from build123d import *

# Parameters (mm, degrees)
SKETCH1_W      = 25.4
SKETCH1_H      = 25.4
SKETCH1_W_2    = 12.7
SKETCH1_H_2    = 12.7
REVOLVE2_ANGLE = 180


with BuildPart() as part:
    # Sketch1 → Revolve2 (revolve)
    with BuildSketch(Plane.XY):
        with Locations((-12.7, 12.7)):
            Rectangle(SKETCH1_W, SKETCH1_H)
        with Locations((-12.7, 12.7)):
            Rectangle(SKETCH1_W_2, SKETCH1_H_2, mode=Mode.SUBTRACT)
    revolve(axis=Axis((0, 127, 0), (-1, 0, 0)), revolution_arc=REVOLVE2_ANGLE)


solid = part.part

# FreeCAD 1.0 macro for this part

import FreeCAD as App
import Part
import Sketcher
Q = App.Units.Quantity


def add_polygon(sketch, points):
    """Adds a closed chain of lines whose ends are joined by coincident constraints."""
    first, n = sketch.GeometryCount, len(points)
    for a, b in zip(points, points[1:] + points[:1]):
        sketch.addGeometry(Part.LineSegment(App.Vector(*a, 0), App.Vector(*b, 0)), False)
    for i in range(n):
        sketch.addConstraint(Sketcher.Constraint("Coincident", first + i, 2, first + (i + 1) % n, 1))

doc = App.newDocument("Part")
body = doc.addObject("PartDesign::Body", "Body")

# Sketch on XY plane
sketch1 = body.newObject("Sketcher::SketchObject", "Sketch")
sketch1.AttachmentSupport = (doc.getObject("XY_Plane"), [""])
sketch1.MapMode = "FlatFace"
add_polygon(sketch1, [(-25.4, 25.4), (-25.4, 0), (0, 0), (0, 25.4)])  # lines 0-3
add_polygon(sketch1, [(-6.35, 6.35), (-19.05, 6.35), (-19.05, 19.05), (-6.35, 19.05)])  # lines 4-7
sketch1.addGeometry(Part.LineSegment(App.Vector(0, 127, 0), App.Vector(-25.4, 127, 0)), True)  # axis
sketch1.addConstraint([
    Sketcher.Constraint("Vertical", 0),
    Sketcher.Constraint("Horizontal", 1),
    Sketcher.Constraint("Vertical", 2),
    Sketcher.Constraint("Horizontal", 3),
    Sketcher.Constraint("Horizontal", 4),
    Sketcher.Constraint("Vertical", 5),
    Sketcher.Constraint("Horizontal", 6),
    Sketcher.Constraint("Vertical", 7),
    Sketcher.Constraint("Horizontal", 8),
    Sketcher.Constraint("Coincident", 1, 2, -1, 1),
    Sketcher.Constraint("PointOnObject", 8, 1, -2),
    Sketcher.Constraint("Vertical", 3, 2, 8, 2),
    Sketcher.Constraint("Equal", 8, 0),
    Sketcher.Constraint("Equal", 6, 5),
    Sketcher.Constraint("DistanceX", 1, 1, 1, 2, Q("1 in")),
    Sketcher.Constraint("DistanceX", 4, 2, 4, 1, Q("0.5 in")),
    Sketcher.Constraint("DistanceY", -1, 1, 8, 1, Q("5 in")),
    Sketcher.Constraint("DistanceX", 4, 2, -1, 1, Q("0.75 in")),
    Sketcher.Constraint("DistanceY", -1, 1, 4, 2, Q("0.25 in")),
])
revolution = body.newObject("PartDesign::Revolution", "Revolution")
revolution.Profile = sketch1
revolution.ReferenceAxis = (sketch1, ["Axis0"])
revolution.Angle = 180

doc.recompute()
